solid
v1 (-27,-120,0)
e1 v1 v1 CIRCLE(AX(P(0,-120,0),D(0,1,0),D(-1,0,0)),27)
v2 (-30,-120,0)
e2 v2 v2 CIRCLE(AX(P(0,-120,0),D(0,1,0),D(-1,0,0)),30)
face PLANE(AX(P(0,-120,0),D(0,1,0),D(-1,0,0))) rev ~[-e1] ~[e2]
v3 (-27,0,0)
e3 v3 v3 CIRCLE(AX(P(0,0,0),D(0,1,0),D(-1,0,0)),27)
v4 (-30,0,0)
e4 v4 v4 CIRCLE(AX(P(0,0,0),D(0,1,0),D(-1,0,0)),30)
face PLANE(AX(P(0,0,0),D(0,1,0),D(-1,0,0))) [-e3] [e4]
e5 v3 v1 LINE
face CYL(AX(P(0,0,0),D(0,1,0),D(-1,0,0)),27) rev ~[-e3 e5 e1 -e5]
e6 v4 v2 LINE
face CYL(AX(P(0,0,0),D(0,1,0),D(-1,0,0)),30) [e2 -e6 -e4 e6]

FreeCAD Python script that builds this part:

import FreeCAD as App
import Part
import Sketcher
from FreeCAD import Vector
Q = App.Units.Quantity

doc = App.newDocument("Part")
body = doc.addObject("PartDesign::Body", "Body")

sketch1 = doc.addObject("Sketcher::SketchObject", "Sketch")
body.addObject(sketch1)
sketch1.AttachmentSupport = (doc.XZ_Plane, [""])
sketch1.MapMode = "FlatFace"
sketch1.addGeometry([
    Part.Circle(Vector(0, 0, 0), Vector(0, 0, 1), 30),
    Part.Circle(Vector(0, 0, 0), Vector(0, 0, 1), 27),
], False)
sketch1.addConstraint([
    Sketcher.Constraint("Coincident", 0, 3, -1, 1),
    Sketcher.Constraint("Coincident", 1, 3, -1, 1),
    Sketcher.Constraint("Diameter", 0, Q("60 mm")),
    Sketcher.Constraint("Diameter", 1, Q("54 mm")),
])
pad1 = doc.addObject("PartDesign::Pad", "Pad")
body.addObject(pad1)
pad1.Profile = sketch1
pad1.Length = 120

doc.recompute()
